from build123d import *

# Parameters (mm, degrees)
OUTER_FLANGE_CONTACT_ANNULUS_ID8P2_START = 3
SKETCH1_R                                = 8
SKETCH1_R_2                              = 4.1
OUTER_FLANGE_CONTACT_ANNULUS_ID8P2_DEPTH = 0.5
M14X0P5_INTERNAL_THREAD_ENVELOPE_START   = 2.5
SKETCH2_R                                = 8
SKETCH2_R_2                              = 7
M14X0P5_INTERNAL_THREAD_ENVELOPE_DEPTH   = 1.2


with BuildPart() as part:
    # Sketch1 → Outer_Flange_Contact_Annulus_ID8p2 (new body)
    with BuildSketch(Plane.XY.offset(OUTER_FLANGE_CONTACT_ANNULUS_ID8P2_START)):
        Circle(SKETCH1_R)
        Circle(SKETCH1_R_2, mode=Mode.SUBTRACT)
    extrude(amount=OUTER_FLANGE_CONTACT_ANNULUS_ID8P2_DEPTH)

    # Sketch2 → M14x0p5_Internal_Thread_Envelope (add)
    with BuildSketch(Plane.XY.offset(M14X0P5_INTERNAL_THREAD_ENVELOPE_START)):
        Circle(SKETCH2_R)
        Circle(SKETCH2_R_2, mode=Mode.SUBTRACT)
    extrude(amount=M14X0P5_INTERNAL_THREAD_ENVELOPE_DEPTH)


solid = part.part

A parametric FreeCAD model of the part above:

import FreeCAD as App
import Part
import Sketcher

V = App.Vector

doc = App.newDocument("Part")
body = doc.addObject("PartDesign::Body", "Body")

# Sketch on XY plane
sketch1 = body.newObject("Sketcher::SketchObject", "Sketch")
sketch1.AttachmentSupport = (doc.getObject("XY_Plane"), [""])
sketch1.MapMode = "FlatFace"
sketch1.AttachmentOffset = App.Placement(V(0, 0, 3), App.Rotation())
sketch1.addGeometry([
    Part.Circle(V(0, 0, 0), V(0, 0, 1), 8),
    Part.Circle(V(0, 0, 0), V(0, 0, 1), 4.1),
], False)
sketch1.addConstraint([
    Sketcher.Constraint("Coincident", 0, 3, -1, 1),
    Sketcher.Constraint("Coincident", 1, 3, -1, 1),
    Sketcher.Constraint("Diameter", 0, 16.0),
    Sketcher.Constraint("Diameter", 1, 8.2),
])
pad1 = body.newObject("PartDesign::Pad", "Pad")
pad1.Profile = sketch1
pad1.Length = 0.5

# Sketch on XY plane
sketch2 = body.newObject("Sketcher::SketchObject", "Sketch001")
sketch2.AttachmentSupport = (doc.getObject("XY_Plane"), [""])
sketch2.MapMode = "FlatFace"
sketch2.AttachmentOffset = App.Placement(V(0, 0, 2.5), App.Rotation())
sketch2.addGeometry([
    Part.Circle(V(0, 0, 0), V(0, 0, 1), 8),
    Part.Circle(V(0, 0, 0), V(0, 0, 1), 7),
], False)
sketch2.addConstraint([
    Sketcher.Constraint("Coincident", 0, 3, -1, 1),
    Sketcher.Constraint("Coincident", 1, 3, -1, 1),
    Sketcher.Constraint("Diameter", 0, 16.0),
    Sketcher.Constraint("Diameter", 1, 14.0),
])
pad2 = body.newObject("PartDesign::Pad", "Pad001")
pad2.Profile = sketch2
pad2.Length = 1.2

doc.recompute()
